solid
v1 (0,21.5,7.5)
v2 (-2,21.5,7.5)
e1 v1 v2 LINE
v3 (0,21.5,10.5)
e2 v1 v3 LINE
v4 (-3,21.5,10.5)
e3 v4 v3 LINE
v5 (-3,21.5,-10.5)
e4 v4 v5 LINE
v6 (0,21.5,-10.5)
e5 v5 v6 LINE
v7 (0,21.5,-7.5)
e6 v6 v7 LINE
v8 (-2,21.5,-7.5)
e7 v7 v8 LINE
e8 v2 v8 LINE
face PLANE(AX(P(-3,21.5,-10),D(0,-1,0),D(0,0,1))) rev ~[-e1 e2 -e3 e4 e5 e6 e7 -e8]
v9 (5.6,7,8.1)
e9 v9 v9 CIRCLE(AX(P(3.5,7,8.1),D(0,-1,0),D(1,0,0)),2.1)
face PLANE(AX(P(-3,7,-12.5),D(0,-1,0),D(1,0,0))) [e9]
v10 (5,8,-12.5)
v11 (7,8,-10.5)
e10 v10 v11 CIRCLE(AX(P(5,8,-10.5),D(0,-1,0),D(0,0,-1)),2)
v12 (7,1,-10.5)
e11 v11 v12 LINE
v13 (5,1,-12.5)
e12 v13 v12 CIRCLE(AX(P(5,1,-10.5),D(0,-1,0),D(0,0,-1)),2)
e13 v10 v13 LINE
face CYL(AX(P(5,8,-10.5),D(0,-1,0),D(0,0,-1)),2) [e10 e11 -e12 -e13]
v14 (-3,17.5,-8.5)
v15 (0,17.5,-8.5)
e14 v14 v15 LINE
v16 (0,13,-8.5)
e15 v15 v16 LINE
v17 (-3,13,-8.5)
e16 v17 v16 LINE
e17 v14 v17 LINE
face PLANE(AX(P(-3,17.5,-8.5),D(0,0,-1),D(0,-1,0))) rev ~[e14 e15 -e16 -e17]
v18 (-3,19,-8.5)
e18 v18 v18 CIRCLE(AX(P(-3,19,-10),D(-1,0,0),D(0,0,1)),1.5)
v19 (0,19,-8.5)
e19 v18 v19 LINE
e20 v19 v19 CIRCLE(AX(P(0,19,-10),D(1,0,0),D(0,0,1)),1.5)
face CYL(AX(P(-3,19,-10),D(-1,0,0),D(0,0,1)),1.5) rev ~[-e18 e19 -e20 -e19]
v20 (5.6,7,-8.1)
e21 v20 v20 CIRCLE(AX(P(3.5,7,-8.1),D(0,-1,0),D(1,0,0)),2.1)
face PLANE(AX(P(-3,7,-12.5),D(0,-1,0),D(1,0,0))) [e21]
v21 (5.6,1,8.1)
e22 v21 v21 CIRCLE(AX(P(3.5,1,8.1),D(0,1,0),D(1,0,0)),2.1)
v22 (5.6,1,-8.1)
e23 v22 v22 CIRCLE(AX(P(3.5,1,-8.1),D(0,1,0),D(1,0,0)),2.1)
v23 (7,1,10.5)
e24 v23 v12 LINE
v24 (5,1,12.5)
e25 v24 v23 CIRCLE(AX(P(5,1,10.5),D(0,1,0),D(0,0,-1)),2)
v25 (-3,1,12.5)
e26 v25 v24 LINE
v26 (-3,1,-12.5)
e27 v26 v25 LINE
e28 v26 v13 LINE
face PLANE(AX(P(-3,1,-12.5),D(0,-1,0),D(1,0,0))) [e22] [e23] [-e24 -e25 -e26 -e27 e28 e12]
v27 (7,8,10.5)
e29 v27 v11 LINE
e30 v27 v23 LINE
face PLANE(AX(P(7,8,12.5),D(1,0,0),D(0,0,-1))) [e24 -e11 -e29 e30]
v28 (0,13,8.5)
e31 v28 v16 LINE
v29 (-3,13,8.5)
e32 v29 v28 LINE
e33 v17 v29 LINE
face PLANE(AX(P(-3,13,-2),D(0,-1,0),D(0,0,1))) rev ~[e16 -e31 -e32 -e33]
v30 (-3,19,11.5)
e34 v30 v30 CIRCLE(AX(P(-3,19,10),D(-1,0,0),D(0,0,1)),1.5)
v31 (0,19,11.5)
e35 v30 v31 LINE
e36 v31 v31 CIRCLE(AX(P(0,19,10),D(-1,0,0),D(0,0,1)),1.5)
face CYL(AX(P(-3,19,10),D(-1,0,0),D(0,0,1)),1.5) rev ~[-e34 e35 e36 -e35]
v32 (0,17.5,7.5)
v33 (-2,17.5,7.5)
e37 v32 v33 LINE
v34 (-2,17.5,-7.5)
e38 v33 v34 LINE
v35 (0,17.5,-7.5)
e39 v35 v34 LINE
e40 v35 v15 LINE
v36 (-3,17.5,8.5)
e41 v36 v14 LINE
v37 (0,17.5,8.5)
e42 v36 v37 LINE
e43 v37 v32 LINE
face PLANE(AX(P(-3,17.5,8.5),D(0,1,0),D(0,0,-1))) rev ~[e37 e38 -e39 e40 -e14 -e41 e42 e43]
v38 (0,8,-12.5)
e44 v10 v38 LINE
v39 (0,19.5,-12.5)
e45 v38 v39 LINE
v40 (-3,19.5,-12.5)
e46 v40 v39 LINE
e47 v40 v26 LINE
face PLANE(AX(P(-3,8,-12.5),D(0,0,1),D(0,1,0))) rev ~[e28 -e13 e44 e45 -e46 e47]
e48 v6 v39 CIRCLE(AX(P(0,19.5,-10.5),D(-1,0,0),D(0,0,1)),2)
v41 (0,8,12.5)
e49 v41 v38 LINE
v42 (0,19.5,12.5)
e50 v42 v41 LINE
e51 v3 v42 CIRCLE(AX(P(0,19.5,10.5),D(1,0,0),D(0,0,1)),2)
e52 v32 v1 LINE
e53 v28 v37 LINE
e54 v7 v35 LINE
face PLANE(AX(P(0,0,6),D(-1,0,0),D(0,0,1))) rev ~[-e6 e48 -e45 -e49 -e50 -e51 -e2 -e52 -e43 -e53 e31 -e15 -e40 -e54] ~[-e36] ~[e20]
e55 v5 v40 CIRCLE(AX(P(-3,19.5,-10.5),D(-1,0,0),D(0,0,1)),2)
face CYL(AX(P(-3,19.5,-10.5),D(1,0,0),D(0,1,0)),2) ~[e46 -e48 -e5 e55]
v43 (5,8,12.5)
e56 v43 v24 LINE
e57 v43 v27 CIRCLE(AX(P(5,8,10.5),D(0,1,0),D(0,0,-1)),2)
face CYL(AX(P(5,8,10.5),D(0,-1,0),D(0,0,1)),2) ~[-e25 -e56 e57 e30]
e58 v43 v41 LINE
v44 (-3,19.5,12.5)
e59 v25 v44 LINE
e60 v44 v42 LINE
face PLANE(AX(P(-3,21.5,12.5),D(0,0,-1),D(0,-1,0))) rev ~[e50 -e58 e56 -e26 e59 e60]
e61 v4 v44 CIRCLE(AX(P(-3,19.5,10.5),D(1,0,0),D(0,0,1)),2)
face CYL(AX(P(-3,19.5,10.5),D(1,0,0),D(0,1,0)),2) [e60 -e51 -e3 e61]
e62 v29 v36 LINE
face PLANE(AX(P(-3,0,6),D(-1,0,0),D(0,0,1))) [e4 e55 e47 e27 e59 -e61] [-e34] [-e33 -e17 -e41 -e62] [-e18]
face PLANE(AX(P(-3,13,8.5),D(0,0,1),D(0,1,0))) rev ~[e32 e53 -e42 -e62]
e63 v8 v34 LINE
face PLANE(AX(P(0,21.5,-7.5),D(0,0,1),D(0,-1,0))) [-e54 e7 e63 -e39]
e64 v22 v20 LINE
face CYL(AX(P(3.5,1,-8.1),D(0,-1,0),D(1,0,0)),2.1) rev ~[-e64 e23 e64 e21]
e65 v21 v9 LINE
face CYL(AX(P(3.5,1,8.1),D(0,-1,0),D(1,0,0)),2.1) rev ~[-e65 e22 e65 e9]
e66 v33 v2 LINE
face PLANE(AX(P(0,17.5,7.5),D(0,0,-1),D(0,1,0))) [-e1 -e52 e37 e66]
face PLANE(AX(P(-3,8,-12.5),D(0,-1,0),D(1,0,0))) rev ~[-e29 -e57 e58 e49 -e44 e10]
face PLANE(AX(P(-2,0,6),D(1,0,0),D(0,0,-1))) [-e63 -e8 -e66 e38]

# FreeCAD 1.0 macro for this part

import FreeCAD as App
import Part
import Sketcher


def edges_at(feature, points):
    """Names of the edges that pass closest to the given points."""
    edges = feature.Shape.Edges
    near = lambda p: min(range(len(edges)), key=lambda i: edges[i].distToShape(Part.Vertex(*p))[0])
    return sorted({f"Edge{near(p) + 1}" for p in points})


def add_polygon(sketch, points):
    """Adds a closed chain of lines whose ends are joined by coincident constraints."""
    first, n = sketch.GeometryCount, len(points)
    for a, b in zip(points, points[1:] + points[:1]):
        sketch.addGeometry(Part.LineSegment(App.Vector(*a, 0), App.Vector(*b, 0)), False)
    for i in range(n):
        sketch.addConstraint(Sketcher.Constraint("Coincident", first + i, 2, first + (i + 1) % n, 1))

doc = App.newDocument("Part")
body = doc.addObject("PartDesign::Body", "Body")

# Sketch on YZ plane
sketch1 = body.newObject("Sketcher::SketchObject", "Sketch")
sketch1.AttachmentSupport = (doc.getObject("YZ_Plane"), [""])
sketch1.MapMode = "FlatFace"
sketch1.AttachmentOffset = App.Placement(App.Vector(0, 0, -3), App.Rotation())
add_polygon(sketch1, [(21.5, 12.5), (21.5, -12.5), (8, -12.5), (8, -2), (13, -2), (13, -8.5), (17.5, -8.5), (17.5, 8.5), (13, 8.5), (13, 2), (8, 2), (8, 12.5)])  # lines 0-11
sketch1.addGeometry(Part.Circle(App.Vector(19, -10, 0), App.Vector(0, 0, 1), 1.5), False)  # 12
sketch1.addGeometry(Part.Circle(App.Vector(19, 10, 0), App.Vector(0, 0, 1), 1.5), False)  # 13
sketch1.addConstraint([
    Sketcher.Constraint("Vertical", 0),
    Sketcher.Constraint("Horizontal", 1),
    Sketcher.Constraint("Vertical", 2),
    Sketcher.Constraint("Horizontal", 3),
    Sketcher.Constraint("Vertical", 4),
    Sketcher.Constraint("Horizontal", 5),
    Sketcher.Constraint("Vertical", 6),
    Sketcher.Constraint("Horizontal", 7),
    Sketcher.Constraint("Vertical", 8),
    Sketcher.Constraint("Horizontal", 9),
    Sketcher.Constraint("Vertical", 10),
    Sketcher.Constraint("Horizontal", 11),
    Sketcher.Constraint("Equal", 12, 13),
    Sketcher.Constraint("Symmetric", 12, 3, 13, 3, -1),
    Sketcher.Constraint("Symmetric", 4, 2, 7, 2, -1),
    Sketcher.Constraint("Symmetric", 2, 2, 9, 2, -1),
    Sketcher.Constraint("Equal", 2, 10),
    Sketcher.Constraint("Diameter", 12, 3.0),
    Sketcher.Constraint("DistanceY", 0, 2, 0, 1, 25.0),
    Sketcher.Constraint("DistanceY", 2, 1, 2, 2, 10.5),
    Sketcher.Constraint("DistanceY", 3, 2, 6, 2, 10.5),
    Sketcher.Constraint("DistanceX", 3, 1, 3, 2, 5.0),
    Sketcher.Constraint("DistanceX", 1, 2, 1, 1, 13.5),
    Sketcher.Constraint("DistanceX", 5, 1, 5, 2, 4.5),
    Sketcher.Constraint("DistanceX", -1, 1, 12, 3, 19.0),
    Sketcher.Constraint("DistanceY", 12, 3, -1, 1, 10.0),
    Sketcher.Constraint("DistanceX", -1, 1, 1, 2, 8.0),
])
pad1 = body.newObject("PartDesign::Pad", "Pad")
pad1.Profile = sketch1
pad1.Length = 3

# Sketch on YZ plane
sketch2 = body.newObject("Sketcher::SketchObject", "Sketch001")
sketch2.AttachmentSupport = (doc.getObject("YZ_Plane"), [""])
sketch2.MapMode = "FlatFace"
sketch2.AttachmentOffset = App.Placement(App.Vector(0, 0, -3), App.Rotation())
add_polygon(sketch2, [(13, -2), (8, -2), (8, 2), (13, 2)])  # lines 0-3
sketch2.addConstraint([
    Sketcher.Constraint("Horizontal", 0),
    Sketcher.Constraint("Vertical", 1),
    Sketcher.Constraint("Horizontal", 2),
    Sketcher.Constraint("Vertical", 3),
    Sketcher.Constraint("DistanceX", 0, 2, 0, 1, 5.0),
    Sketcher.Constraint("DistanceY", 1, 1, 1, 2, 4.0),
    Sketcher.Constraint("DistanceX", -1, 1, 0, 2, 8.0),
    Sketcher.Constraint("DistanceY", 0, 2, -1, 1, 2.0),
])
pad2 = body.newObject("PartDesign::Pad", "Pad001")
pad2.Profile = sketch2
pad2.Length = 3
doc.recompute()

fillet = body.newObject("PartDesign::Fillet", "Fillet")
fillet.Base = (pad2, edges_at(pad2, [(-1.5, 21.5, -12.5), (-1.5, 21.5, 12.5)]))
fillet.Radius = 2

# Sketch on XZ plane
sketch3 = body.newObject("Sketcher::SketchObject", "Sketch002")
sketch3.AttachmentSupport = (doc.getObject("XZ_Plane"), [""])
sketch3.MapMode = "FlatFace"
sketch3.AttachmentOffset = App.Placement(App.Vector(0, 0, -8), App.Rotation())
add_polygon(sketch3, [(-3, 12.5), (-3, -12.5), (7, -12.5), (7, 12.5)])  # lines 0-3
sketch3.addConstraint([
    Sketcher.Constraint("Vertical", 0),
    Sketcher.Constraint("Horizontal", 1),
    Sketcher.Constraint("Vertical", 2),
    Sketcher.Constraint("Horizontal", 3),
    Sketcher.Constraint("DistanceX", 1, 1, 1, 2, 10.0),
    Sketcher.Constraint("DistanceY", 0, 2, 0, 1, 25.0),
    Sketcher.Constraint("DistanceX", 0, 2, -1, 1, 3.0),
    Sketcher.Constraint("DistanceY", 0, 2, -1, 1, 12.5),
])
pad3 = body.newObject("PartDesign::Pad", "Pad002")
pad3.Profile = sketch3
pad3.Length = 7

# Sketch on XZ plane
sketch4 = body.newObject("Sketcher::SketchObject", "Sketch003")
sketch4.AttachmentSupport = (doc.getObject("XZ_Plane"), [""])
sketch4.MapMode = "FlatFace"
sketch4.AttachmentOffset = App.Placement(App.Vector(0, 0, -1), App.Rotation())
sketch4.addGeometry(Part.Circle(App.Vector(3.5, -8.1, 0), App.Vector(0, 0, 1), 2.1), False)
sketch4.addConstraint([
    Sketcher.Constraint("Diameter", 0, 4.2),
    Sketcher.Constraint("DistanceX", -1, 1, 0, 3, 3.5),
    Sketcher.Constraint("DistanceY", 0, 3, -1, 1, 8.1),
])
pocket1 = body.newObject("PartDesign::Pocket", "Pocket")
pocket1.Profile = sketch4
pocket1.Length = 6
doc.recompute()

fillet2 = body.newObject("PartDesign::Fillet", "Fillet001")
fillet2.Base = (pocket1, edges_at(pocket1, [(7, 4.5, -12.5), (7, 4.5, 12.5)]))
fillet2.Radius = 2

# Sketch on XZ plane
sketch5 = body.newObject("Sketcher::SketchObject", "Sketch004")
sketch5.AttachmentSupport = (doc.getObject("XZ_Plane"), [""])
sketch5.MapMode = "FlatFace"
sketch5.AttachmentOffset = App.Placement(App.Vector(0, 0, -1), App.Rotation())
sketch5.addGeometry(Part.Circle(App.Vector(3.5, 8.1, 0), App.Vector(0, 0, 1), 2.1), False)
sketch5.addConstraint([
    Sketcher.Constraint("Diameter", 0, 4.2),
    Sketcher.Constraint("DistanceX", -1, 1, 0, 3, 3.5),
    Sketcher.Constraint("DistanceY", -1, 1, 0, 3, 8.1),
])
pocket2 = body.newObject("PartDesign::Pocket", "Pocket001")
pocket2.Profile = sketch5
pocket2.Length = 6

# Sketch on YZ plane
sketch6 = body.newObject("Sketcher::SketchObject", "Sketch005")
sketch6.AttachmentSupport = (doc.getObject("YZ_Plane"), [""])
sketch6.MapMode = "FlatFace"
add_polygon(sketch6, [(21.5, -7.5), (21.5, 7.5), (17.5, 7.5), (17.5, -7.5)])  # lines 0-3
sketch6.addConstraint([
    Sketcher.Constraint("Vertical", 0),
    Sketcher.Constraint("Horizontal", 1),
    Sketcher.Constraint("Vertical", 2),
    Sketcher.Constraint("Horizontal", 3),
    Sketcher.Constraint("DistanceY", 0, 1, 0, 2, 15.0),
    Sketcher.Constraint("DistanceX", 1, 2, 1, 1, 4.0),
    Sketcher.Constraint("DistanceX", -1, 1, 0, 2, 21.5),
    Sketcher.Constraint("DistanceY", -1, 1, 0, 2, 7.5),
])
pocket3 = body.newObject("PartDesign::Pocket", "Pocket002")
pocket3.Profile = sketch6
pocket3.Length = 2

doc.recompute()
